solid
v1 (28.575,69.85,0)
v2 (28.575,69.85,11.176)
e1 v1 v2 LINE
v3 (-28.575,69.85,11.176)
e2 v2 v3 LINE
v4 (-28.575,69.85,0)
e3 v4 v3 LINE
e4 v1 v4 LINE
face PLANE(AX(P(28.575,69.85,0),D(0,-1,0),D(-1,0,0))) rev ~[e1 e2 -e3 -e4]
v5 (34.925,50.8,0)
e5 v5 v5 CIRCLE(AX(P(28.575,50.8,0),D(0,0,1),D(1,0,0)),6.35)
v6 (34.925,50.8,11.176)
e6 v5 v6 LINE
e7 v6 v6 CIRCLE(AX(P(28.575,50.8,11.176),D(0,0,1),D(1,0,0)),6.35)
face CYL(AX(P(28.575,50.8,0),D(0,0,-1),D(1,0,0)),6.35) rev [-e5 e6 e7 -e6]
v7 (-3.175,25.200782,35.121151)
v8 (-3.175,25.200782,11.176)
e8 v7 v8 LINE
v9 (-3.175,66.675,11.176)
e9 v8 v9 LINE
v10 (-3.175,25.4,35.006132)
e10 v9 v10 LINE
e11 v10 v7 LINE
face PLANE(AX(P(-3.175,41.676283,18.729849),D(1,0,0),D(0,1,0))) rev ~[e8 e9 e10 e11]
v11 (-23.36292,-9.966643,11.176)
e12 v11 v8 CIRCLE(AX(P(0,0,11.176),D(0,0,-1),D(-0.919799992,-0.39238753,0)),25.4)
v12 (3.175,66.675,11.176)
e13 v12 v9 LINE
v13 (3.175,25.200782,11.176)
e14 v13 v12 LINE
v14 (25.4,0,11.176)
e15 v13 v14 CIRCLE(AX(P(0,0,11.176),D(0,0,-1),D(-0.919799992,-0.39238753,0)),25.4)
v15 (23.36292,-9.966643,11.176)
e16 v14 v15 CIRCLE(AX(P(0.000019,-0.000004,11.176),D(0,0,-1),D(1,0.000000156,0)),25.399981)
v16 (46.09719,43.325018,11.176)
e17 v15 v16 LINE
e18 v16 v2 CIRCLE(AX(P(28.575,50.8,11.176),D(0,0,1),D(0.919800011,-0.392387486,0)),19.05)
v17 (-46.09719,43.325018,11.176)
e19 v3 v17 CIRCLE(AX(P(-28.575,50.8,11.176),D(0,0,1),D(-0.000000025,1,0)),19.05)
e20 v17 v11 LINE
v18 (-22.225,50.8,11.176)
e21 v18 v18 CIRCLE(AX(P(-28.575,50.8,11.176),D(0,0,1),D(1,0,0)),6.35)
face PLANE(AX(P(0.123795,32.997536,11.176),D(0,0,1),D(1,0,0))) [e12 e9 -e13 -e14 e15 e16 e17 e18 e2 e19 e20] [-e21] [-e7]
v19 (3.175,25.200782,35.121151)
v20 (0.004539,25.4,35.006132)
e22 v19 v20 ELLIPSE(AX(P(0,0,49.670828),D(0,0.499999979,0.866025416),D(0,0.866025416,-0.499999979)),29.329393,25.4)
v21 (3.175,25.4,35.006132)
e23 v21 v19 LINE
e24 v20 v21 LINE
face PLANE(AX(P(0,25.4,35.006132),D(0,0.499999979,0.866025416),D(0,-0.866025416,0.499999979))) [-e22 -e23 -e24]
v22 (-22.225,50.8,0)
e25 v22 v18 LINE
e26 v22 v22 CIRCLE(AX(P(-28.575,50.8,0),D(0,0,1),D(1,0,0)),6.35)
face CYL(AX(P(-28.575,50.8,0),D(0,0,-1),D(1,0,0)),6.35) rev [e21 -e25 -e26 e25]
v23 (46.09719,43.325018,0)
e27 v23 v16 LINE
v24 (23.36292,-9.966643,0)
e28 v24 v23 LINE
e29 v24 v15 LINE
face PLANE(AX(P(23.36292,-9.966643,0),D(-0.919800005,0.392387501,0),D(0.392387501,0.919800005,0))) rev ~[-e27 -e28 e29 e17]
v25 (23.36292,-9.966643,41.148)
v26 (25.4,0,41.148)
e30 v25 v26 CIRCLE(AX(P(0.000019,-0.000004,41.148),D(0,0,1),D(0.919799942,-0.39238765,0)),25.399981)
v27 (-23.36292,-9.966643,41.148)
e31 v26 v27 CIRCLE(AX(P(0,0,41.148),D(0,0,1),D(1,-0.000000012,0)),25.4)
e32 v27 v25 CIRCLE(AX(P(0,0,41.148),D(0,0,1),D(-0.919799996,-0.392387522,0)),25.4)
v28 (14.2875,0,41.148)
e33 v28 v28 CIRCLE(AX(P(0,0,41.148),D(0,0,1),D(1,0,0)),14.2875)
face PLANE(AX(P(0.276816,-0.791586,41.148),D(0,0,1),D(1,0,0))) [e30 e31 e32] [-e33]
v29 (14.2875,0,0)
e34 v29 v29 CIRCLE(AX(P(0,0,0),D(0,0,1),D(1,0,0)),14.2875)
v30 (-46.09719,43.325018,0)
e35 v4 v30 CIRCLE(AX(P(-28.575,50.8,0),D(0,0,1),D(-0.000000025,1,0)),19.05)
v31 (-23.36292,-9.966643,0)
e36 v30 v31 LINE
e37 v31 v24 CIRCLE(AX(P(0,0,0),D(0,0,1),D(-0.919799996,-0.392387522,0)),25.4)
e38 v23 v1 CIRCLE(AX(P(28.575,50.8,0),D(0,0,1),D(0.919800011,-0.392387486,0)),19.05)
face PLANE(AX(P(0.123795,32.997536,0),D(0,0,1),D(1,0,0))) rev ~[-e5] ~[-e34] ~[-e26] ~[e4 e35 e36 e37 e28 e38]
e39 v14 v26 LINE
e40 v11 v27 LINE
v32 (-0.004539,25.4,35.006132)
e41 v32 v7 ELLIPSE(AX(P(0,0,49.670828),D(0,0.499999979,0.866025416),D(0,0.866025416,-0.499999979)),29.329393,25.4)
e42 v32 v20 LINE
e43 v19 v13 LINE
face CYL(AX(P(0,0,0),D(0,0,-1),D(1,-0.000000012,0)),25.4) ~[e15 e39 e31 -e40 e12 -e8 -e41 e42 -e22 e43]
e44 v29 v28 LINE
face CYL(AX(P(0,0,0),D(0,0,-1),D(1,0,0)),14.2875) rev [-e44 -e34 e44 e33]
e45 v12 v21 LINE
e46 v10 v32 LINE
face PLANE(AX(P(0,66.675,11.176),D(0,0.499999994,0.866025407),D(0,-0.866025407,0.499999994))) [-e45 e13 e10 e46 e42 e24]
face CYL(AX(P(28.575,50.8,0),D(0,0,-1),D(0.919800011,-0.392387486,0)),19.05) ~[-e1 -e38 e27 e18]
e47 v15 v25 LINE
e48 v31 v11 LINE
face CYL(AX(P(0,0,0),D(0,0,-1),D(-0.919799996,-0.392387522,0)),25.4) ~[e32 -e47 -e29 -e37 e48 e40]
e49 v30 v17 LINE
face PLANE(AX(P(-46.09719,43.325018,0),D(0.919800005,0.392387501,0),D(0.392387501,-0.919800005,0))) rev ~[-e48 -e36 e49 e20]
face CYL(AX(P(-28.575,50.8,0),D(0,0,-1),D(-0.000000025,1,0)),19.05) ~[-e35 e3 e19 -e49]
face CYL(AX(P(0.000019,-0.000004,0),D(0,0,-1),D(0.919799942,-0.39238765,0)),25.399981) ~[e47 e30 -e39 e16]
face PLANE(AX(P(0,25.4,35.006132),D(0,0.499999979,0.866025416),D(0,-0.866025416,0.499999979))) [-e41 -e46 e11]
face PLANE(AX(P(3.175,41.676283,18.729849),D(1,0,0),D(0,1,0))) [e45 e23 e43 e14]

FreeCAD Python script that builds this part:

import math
import FreeCAD as App
import Part
import Sketcher
Q = App.Units.Quantity


def add_polygon(sketch, points):
    """Adds a closed chain of lines whose ends are joined by coincident constraints."""
    first, n = sketch.GeometryCount, len(points)
    for a, b in zip(points, points[1:] + points[:1]):
        sketch.addGeometry(Part.LineSegment(App.Vector(*a, 0), App.Vector(*b, 0)), False)
    for i in range(n):
        sketch.addConstraint(Sketcher.Constraint("Coincident", first + i, 2, first + (i + 1) % n, 1))

doc = App.newDocument("Part")
params = doc.addObject("Spreadsheet::Sheet", "Params")
for row, (alias, value) in enumerate([
    ("sketch1_radius", "1 in"),
    ("sketch1_diameter", "1.125 in"),
    ("pad1_length", "1.62 in"),
    ("sketch2_radius", "1 in"),
    ("sketch2_diameter", "0.5 in"),
    ("sketch2_radius2", "0.75 in"),
    ("sketch2_width", "2.25 in"),
    ("pad2_length", "0.44 in"),
    ("sketch3_width", "1.75 in"),
    ("pad3_length", "0.25 in"),
], start=1):
    params.set(f"A{row}", alias)
    params.set(f"B{row}", "=" + value)
    params.setAlias(f"B{row}", alias)

body = doc.addObject("PartDesign::Body", "Body")

# Sketch on XY plane
sketch1 = doc.addObject("Sketcher::SketchObject", "Sketch")
body.addObject(sketch1)
sketch1.AttachmentSupport = (doc.XY_Plane, [""])
sketch1.MapMode = "FlatFace"
sketch1.addGeometry(Part.ArcOfCircle(Part.Circle(App.Vector(0, 0, 0), App.Vector(0, 0, 1), 25), math.radians(-23), math.radians(0)), False)
sketch1.addGeometry(Part.ArcOfCircle(Part.Circle(App.Vector(0, 0, 0), App.Vector(0, 0, 1), 25), math.radians(0), math.radians(203)), False)
sketch1.addGeometry(Part.ArcOfCircle(Part.Circle(App.Vector(0, 0, 0), App.Vector(0, 0, 1), 25), math.radians(-157), math.radians(-23)), False)
sketch1.addGeometry(Part.Circle(App.Vector(0, 0, 0), App.Vector(0, 0, 1), 14), False)
sketch1.addConstraint(Sketcher.Constraint("Tangent", 0, 2, 1, 1))
sketch1.addConstraint(Sketcher.Constraint("Tangent", 1, 2, 2, 1))
sketch1.addConstraint(Sketcher.Constraint("Tangent", 2, 2, 0, 1))
sketch1.addConstraint(Sketcher.Constraint("Coincident", 1, 3, -1, 1))
sketch1.addConstraint(Sketcher.Constraint("Coincident", 3, 3, -1, 1))
sketch1.addConstraint(Sketcher.Constraint("PointOnObject", 0, 2, -1))
sketch1.addConstraint(Sketcher.Constraint("Horizontal", 1, 2, 2, 2))
sketch1.addConstraint(Sketcher.Constraint("Radius", 1, Q("1 in")))
sketch1.addConstraint(Sketcher.Constraint("Diameter", 3, Q("1.125 in")))
sketch1.addConstraint(Sketcher.Constraint("DistanceX", 1, 2, -1, 1, Q("0.9198 in")))
sketch1.setExpression("Constraints[7]", "Params.sketch1_radius")
sketch1.setExpression("Constraints[8]", "Params.sketch1_diameter")
pad1 = doc.addObject("PartDesign::Pad", "Pad")
body.addObject(pad1)
pad1.Profile = sketch1
pad1.setExpression("Length", "Params.pad1_length")

# Sketch on XY plane
sketch2 = doc.addObject("Sketcher::SketchObject", "Sketch001")
body.addObject(sketch2)
sketch2.AttachmentSupport = (doc.XY_Plane, [""])
sketch2.MapMode = "FlatFace"
sketch2.addGeometry(Part.ArcOfCircle(Part.Circle(App.Vector(0, 0, 0), App.Vector(0, 0, 1), 25), math.radians(0), math.radians(203)), False)
sketch2.addGeometry(Part.ArcOfCircle(Part.Circle(App.Vector(0, 0, 0), App.Vector(0, 0, 1), 25), math.radians(-23), math.radians(0)), False)
sketch2.addGeometry(Part.LineSegment(App.Vector(23, -10, 0), App.Vector(46, 43, 0)), False)
sketch2.addGeometry(Part.ArcOfCircle(Part.Circle(App.Vector(29, 51, 0), App.Vector(0, 0, 1), 19), math.radians(-23), math.radians(90)), False)
sketch2.addGeometry(Part.LineSegment(App.Vector(29, 70, 0), App.Vector(-29, 70, 0)), False)
sketch2.addGeometry(Part.ArcOfCircle(Part.Circle(App.Vector(-29, 51, 0), App.Vector(0, 0, 1), 19), math.radians(90), math.radians(203)), False)
sketch2.addGeometry(Part.LineSegment(App.Vector(-46, 43, 0), App.Vector(-23, -10, 0)), False)
sketch2.addGeometry(Part.Circle(App.Vector(-29, 51, 0), App.Vector(0, 0, 1), 6), False)
sketch2.addGeometry(Part.Circle(App.Vector(29, 51, 0), App.Vector(0, 0, 1), 6), False)
sketch2.addConstraint(Sketcher.Constraint("Tangent", 0, 1, 1, 2))
sketch2.addConstraint(Sketcher.Constraint("Tangent", 1, 1, 2, 1))
sketch2.addConstraint(Sketcher.Constraint("Tangent", 2, 2, 3, 1))
sketch2.addConstraint(Sketcher.Constraint("Tangent", 3, 2, 4, 1))
sketch2.addConstraint(Sketcher.Constraint("Tangent", 4, 2, 5, 1))
sketch2.addConstraint(Sketcher.Constraint("Tangent", 5, 2, 6, 1))
sketch2.addConstraint(Sketcher.Constraint("Tangent", 6, 2, 0, 2))
sketch2.addConstraint(Sketcher.Constraint("Horizontal", 4))
sketch2.addConstraint(Sketcher.Constraint("Coincident", 0, 3, -1, 1))
sketch2.addConstraint(Sketcher.Constraint("Coincident", 7, 3, 5, 3))
sketch2.addConstraint(Sketcher.Constraint("Coincident", 8, 3, 3, 3))
sketch2.addConstraint(Sketcher.Constraint("Equal", 3, 5))
sketch2.addConstraint(Sketcher.Constraint("Equal", 7, 8))
sketch2.addConstraint(Sketcher.Constraint("Symmetric", 1, 1, 6, 2, -2))
sketch2.addConstraint(Sketcher.Constraint("PointOnObject", 0, 1, -1))
sketch2.addConstraint(Sketcher.Constraint("Radius", 0, Q("1 in")))
sketch2.addConstraint(Sketcher.Constraint("Diameter", 7, Q("0.5 in")))
sketch2.addConstraint(Sketcher.Constraint("Radius", 3, Q("0.75 in")))
sketch2.addConstraint(Sketcher.Constraint("DistanceY", -1, 1, 3, 3, Q("2 in")))
sketch2.addConstraint(Sketcher.Constraint("DistanceX", 4, 2, 4, 1, Q("2.25 in")))
sketch2.setExpression("Constraints[15]", "Params.sketch2_radius")
sketch2.setExpression("Constraints[16]", "Params.sketch2_diameter")
sketch2.setExpression("Constraints[17]", "Params.sketch2_radius2")
sketch2.setExpression("Constraints[19]", "Params.sketch2_width")
pad2 = doc.addObject("PartDesign::Pad", "Pad001")
body.addObject(pad2)
pad2.Profile = sketch2
pad2.setExpression("Length", "Params.pad2_length")

# Sketch on YZ plane
sketch3 = doc.addObject("Sketcher::SketchObject", "Sketch002")
body.addObject(sketch3)
sketch3.AttachmentSupport = (doc.YZ_Plane, [""])
sketch3.MapMode = "FlatFace"
add_polygon(sketch3, [(66.7, 11.2), (25.4, 35), (22.2, 36.8), (22.2, 11.2)])  # lines 0-3
sketch3.addConstraint(Sketcher.Constraint("Vertical", 2))
sketch3.addConstraint(Sketcher.Constraint("Horizontal", 3))
sketch3.addConstraint(Sketcher.Constraint("Parallel", 0, 1))
sketch3.addConstraint(Sketcher.Constraint("DistanceX", -1, 1, 0, 2, Q("1 in")))
sketch3.addConstraint(Sketcher.Constraint("Angle", 0, Q("150 deg")))
sketch3.addConstraint(Sketcher.Constraint("DistanceX", 3, 1, 3, 2, Q("1.75 in")))
sketch3.addConstraint(Sketcher.Constraint("DistanceY", -1, 1, 2, 2, Q("0.44 in")))
sketch3.addConstraint(Sketcher.Constraint("DistanceX", -1, 1, 1, 2, Q("0.875 in")))
sketch3.setExpression("Constraints[9]", "Params.sketch3_width")
pad3 = doc.addObject("PartDesign::Pad", "Pad002")
body.addObject(pad3)
pad3.Profile = sketch3
pad3.setExpression("Length", "Params.pad3_length")
pad3.Midplane = True

doc.recompute()
